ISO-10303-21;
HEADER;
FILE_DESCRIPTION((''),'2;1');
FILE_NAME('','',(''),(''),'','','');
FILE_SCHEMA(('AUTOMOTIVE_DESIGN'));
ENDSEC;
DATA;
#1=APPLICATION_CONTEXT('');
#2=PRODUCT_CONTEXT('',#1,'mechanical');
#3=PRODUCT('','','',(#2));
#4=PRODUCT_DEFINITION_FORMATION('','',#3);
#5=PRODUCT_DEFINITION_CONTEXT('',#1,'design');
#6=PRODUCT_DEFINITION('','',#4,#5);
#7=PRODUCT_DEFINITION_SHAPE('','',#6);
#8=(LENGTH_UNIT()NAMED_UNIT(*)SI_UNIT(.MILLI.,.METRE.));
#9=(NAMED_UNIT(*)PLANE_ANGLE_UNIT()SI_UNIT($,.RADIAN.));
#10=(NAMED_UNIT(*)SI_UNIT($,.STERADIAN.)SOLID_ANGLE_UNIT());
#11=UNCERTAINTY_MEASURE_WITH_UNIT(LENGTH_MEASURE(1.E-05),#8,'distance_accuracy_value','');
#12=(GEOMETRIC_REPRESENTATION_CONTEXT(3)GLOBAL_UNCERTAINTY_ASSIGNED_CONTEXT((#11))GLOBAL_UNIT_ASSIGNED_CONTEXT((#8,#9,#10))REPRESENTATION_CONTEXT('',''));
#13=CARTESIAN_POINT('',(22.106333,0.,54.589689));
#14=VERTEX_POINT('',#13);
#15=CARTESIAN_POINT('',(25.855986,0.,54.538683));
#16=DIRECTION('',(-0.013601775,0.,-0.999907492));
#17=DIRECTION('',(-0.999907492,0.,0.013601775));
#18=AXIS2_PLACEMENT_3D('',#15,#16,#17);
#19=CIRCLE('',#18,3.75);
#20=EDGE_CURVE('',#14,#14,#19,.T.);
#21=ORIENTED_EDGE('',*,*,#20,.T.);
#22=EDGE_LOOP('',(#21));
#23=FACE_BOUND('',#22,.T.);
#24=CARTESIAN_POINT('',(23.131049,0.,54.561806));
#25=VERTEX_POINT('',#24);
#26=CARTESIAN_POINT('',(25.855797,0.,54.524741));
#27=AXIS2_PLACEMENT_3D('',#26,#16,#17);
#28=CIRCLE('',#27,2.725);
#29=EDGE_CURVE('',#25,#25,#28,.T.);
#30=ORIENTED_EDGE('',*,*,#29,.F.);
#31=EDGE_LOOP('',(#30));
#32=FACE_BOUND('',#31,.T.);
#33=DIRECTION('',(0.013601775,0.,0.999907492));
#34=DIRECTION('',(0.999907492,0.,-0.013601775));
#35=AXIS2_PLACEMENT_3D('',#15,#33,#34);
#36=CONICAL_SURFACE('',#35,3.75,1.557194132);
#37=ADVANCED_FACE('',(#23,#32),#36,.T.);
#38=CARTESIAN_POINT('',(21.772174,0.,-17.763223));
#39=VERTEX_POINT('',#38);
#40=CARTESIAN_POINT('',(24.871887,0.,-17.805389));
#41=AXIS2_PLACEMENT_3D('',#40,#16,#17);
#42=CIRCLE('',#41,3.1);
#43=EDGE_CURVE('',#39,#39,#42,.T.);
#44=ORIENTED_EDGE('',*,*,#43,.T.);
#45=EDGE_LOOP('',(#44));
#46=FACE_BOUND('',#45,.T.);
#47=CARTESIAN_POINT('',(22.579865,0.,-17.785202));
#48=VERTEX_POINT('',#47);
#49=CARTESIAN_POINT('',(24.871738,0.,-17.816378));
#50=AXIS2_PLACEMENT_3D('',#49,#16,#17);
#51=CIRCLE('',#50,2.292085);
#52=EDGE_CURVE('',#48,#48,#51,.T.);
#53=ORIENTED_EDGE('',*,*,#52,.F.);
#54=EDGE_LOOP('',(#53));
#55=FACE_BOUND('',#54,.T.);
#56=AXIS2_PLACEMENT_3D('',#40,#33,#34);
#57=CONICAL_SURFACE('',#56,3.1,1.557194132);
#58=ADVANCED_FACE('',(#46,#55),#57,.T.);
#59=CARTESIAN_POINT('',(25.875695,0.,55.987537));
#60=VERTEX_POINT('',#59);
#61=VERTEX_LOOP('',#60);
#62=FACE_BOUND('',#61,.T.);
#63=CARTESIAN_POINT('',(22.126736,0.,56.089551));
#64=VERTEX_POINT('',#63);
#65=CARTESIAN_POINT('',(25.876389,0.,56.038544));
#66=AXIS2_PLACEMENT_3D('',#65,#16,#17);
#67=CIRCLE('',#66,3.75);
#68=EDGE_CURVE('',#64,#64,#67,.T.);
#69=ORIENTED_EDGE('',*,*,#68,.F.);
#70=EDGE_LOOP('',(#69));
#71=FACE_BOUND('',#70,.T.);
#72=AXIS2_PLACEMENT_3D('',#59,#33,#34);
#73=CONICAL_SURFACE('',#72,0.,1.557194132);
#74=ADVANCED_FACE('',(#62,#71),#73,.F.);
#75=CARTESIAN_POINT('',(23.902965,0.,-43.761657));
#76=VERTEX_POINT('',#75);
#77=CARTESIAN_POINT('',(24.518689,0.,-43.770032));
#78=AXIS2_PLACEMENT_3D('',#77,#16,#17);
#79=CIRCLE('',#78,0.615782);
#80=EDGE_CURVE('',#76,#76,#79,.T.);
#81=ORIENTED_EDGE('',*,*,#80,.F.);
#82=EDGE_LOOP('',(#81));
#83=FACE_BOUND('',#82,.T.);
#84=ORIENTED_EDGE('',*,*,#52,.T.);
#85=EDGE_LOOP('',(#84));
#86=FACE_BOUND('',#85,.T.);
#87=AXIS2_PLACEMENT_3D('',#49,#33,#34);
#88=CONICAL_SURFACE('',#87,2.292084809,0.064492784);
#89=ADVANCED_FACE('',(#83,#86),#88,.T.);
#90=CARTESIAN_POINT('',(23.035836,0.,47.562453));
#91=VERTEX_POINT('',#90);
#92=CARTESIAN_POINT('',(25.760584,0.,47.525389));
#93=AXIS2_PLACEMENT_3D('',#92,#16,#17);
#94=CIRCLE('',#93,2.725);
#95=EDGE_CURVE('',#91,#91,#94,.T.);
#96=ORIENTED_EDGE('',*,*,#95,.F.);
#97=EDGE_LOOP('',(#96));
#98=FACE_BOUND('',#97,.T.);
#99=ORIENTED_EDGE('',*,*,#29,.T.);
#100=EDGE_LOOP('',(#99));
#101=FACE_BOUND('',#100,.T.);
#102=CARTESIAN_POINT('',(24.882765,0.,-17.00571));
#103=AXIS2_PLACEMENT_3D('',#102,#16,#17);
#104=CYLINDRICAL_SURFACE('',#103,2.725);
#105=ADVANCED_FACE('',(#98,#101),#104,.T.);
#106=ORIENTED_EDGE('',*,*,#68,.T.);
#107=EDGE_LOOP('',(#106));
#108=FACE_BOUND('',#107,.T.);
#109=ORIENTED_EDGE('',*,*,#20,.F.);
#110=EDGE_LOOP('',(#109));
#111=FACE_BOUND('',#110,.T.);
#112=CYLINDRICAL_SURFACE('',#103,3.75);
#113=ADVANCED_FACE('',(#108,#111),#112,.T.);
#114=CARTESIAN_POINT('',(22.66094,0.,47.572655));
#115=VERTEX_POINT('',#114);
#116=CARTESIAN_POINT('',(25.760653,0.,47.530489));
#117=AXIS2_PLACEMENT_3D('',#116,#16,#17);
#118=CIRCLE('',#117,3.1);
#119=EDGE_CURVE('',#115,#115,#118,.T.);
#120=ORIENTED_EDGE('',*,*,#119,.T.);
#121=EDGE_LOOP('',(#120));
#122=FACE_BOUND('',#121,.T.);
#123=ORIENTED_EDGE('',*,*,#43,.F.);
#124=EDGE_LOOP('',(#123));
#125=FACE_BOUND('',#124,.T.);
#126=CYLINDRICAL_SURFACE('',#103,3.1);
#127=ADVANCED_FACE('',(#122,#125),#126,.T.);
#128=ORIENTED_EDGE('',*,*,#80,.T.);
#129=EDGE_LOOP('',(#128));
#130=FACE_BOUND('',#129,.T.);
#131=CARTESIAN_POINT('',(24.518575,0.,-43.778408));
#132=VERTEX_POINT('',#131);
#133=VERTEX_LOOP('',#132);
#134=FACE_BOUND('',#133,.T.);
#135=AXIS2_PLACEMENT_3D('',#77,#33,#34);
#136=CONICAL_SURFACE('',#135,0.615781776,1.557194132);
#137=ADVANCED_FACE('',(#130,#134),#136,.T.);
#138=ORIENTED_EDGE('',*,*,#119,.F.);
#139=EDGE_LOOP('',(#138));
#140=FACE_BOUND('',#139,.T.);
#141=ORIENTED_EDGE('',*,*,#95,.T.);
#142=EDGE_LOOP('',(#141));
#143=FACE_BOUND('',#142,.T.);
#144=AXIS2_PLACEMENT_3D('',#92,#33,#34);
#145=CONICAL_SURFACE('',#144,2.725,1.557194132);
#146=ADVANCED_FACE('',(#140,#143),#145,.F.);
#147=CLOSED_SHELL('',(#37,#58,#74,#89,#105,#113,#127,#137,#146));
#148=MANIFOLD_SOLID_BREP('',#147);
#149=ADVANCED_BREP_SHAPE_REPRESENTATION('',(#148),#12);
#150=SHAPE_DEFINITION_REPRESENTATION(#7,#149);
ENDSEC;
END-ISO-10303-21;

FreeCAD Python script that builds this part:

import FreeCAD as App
import Part
import Sketcher
from FreeCAD import Vector

doc = App.newDocument("Part")
body = doc.addObject("PartDesign::Body", "Body")

sketch1 = body.newObject("Sketcher::SketchObject", "Sketch")
sketch1.AttachmentSupport = (doc.getObject("XZ_Plane"), [""])
sketch1.MapMode = "FlatFace"
sketch1.addGeometry([
    Part.LineSegment(Vector(24.88, -17.01, 0), Vector(25.88, 55.99, 0)),
    Part.LineSegment(Vector(25.88, 55.99, 0), Vector(29.63, 55.99, 0)),
    Part.LineSegment(Vector(29.63, 55.99, 0), Vector(29.61, 54.49, 0)),
    Part.LineSegment(Vector(29.61, 54.49, 0), Vector(28.58, 54.49, 0)),
    Part.LineSegment(Vector(28.58, 54.49, 0), Vector(28.49, 47.49, 0)),
    Part.LineSegment(Vector(28.49, 47.49, 0), Vector(28.86, 47.49, 0)),
    Part.LineSegment(Vector(28.86, 47.49, 0), Vector(27.97, -17.85, 0)),
    Part.LineSegment(Vector(27.97, -17.85, 0), Vector(27.16, -17.85, 0)),
    Part.LineSegment(Vector(27.16, -17.85, 0), Vector(25.13, -43.78, 0)),
    Part.LineSegment(Vector(25.13, -43.78, 0), Vector(24.52, -43.78, 0)),
    Part.LineSegment(Vector(24.52, -43.78, 0), Vector(24.88, -17.01, 0)),
], False)
sketch1.addGeometry(Part.LineSegment(Vector(24.52, -43.78, 0), Vector(25.88, 56.04, 0)), True)
sketch1.addConstraint([
    Sketcher.Constraint("Coincident", 0, 2, 1, 1),
    Sketcher.Constraint("Coincident", 1, 2, 2, 1),
    Sketcher.Constraint("Coincident", 2, 2, 3, 1),
    Sketcher.Constraint("Coincident", 3, 2, 4, 1),
    Sketcher.Constraint("Coincident", 4, 2, 5, 1),
    Sketcher.Constraint("Coincident", 5, 2, 6, 1),
    Sketcher.Constraint("Coincident", 6, 2, 7, 1),
    Sketcher.Constraint("Coincident", 7, 2, 8, 1),
    Sketcher.Constraint("Coincident", 8, 2, 9, 1),
    Sketcher.Constraint("Coincident", 9, 2, 10, 1),
    Sketcher.Constraint("Coincident", 10, 2, 0, 1),
    Sketcher.Constraint("Horizontal", 1),
    Sketcher.Constraint("Horizontal", 3),
    Sketcher.Constraint("Horizontal", 5),
    Sketcher.Constraint("Horizontal", 7),
    Sketcher.Constraint("Horizontal", 9),
    Sketcher.Constraint("Coincident", 11, 1, 9, 2),
    Sketcher.Constraint("Parallel", 0, 2),
    Sketcher.Constraint("Parallel", 2, 4),
    Sketcher.Constraint("Parallel", 4, 6),
    Sketcher.Constraint("Parallel", 6, 10),
    Sketcher.Constraint("Parallel", 10, 11),
    Sketcher.Constraint("Distance", 0, 73.0),
    Sketcher.Constraint("Distance", 4, 7.0),
    Sketcher.Constraint("Distance", 2, 1.5),
    Sketcher.Constraint("DistanceX", 7, 2, 7, 1, 0.80799),
    Sketcher.Constraint("DistanceX", 9, 2, 9, 1, 0.615839),
    Sketcher.Constraint("DistanceX", -1, 1, 6, 2, 27.971601),
    Sketcher.Constraint("DistanceY", 8, 2, 10, 2, 26.772699),
    Sketcher.Constraint("Distance", 8, 26.010129),
    Sketcher.Constraint("DistanceX", 1, 1, 1, 2, 3.750347),
    Sketcher.Constraint("DistanceX", 3, 2, 3, 1, 1.025095),
    Sketcher.Constraint("DistanceX", 5, 1, 5, 2, 0.375035),
    Sketcher.Constraint("DistanceX", -1, 1, 1, 2, 29.626042),
    Sketcher.Constraint("DistanceY", 8, 2, -1, 1, 43.778408),
    Sketcher.Constraint("DistanceX", -1, 1, 11, 2, 25.876389),
])
revolution = body.newObject("PartDesign::Revolution", "Revolution")
revolution.Profile = sketch1
revolution.ReferenceAxis = (sketch1, ["Axis0"])
revolution.Angle = 360

doc.recompute()
